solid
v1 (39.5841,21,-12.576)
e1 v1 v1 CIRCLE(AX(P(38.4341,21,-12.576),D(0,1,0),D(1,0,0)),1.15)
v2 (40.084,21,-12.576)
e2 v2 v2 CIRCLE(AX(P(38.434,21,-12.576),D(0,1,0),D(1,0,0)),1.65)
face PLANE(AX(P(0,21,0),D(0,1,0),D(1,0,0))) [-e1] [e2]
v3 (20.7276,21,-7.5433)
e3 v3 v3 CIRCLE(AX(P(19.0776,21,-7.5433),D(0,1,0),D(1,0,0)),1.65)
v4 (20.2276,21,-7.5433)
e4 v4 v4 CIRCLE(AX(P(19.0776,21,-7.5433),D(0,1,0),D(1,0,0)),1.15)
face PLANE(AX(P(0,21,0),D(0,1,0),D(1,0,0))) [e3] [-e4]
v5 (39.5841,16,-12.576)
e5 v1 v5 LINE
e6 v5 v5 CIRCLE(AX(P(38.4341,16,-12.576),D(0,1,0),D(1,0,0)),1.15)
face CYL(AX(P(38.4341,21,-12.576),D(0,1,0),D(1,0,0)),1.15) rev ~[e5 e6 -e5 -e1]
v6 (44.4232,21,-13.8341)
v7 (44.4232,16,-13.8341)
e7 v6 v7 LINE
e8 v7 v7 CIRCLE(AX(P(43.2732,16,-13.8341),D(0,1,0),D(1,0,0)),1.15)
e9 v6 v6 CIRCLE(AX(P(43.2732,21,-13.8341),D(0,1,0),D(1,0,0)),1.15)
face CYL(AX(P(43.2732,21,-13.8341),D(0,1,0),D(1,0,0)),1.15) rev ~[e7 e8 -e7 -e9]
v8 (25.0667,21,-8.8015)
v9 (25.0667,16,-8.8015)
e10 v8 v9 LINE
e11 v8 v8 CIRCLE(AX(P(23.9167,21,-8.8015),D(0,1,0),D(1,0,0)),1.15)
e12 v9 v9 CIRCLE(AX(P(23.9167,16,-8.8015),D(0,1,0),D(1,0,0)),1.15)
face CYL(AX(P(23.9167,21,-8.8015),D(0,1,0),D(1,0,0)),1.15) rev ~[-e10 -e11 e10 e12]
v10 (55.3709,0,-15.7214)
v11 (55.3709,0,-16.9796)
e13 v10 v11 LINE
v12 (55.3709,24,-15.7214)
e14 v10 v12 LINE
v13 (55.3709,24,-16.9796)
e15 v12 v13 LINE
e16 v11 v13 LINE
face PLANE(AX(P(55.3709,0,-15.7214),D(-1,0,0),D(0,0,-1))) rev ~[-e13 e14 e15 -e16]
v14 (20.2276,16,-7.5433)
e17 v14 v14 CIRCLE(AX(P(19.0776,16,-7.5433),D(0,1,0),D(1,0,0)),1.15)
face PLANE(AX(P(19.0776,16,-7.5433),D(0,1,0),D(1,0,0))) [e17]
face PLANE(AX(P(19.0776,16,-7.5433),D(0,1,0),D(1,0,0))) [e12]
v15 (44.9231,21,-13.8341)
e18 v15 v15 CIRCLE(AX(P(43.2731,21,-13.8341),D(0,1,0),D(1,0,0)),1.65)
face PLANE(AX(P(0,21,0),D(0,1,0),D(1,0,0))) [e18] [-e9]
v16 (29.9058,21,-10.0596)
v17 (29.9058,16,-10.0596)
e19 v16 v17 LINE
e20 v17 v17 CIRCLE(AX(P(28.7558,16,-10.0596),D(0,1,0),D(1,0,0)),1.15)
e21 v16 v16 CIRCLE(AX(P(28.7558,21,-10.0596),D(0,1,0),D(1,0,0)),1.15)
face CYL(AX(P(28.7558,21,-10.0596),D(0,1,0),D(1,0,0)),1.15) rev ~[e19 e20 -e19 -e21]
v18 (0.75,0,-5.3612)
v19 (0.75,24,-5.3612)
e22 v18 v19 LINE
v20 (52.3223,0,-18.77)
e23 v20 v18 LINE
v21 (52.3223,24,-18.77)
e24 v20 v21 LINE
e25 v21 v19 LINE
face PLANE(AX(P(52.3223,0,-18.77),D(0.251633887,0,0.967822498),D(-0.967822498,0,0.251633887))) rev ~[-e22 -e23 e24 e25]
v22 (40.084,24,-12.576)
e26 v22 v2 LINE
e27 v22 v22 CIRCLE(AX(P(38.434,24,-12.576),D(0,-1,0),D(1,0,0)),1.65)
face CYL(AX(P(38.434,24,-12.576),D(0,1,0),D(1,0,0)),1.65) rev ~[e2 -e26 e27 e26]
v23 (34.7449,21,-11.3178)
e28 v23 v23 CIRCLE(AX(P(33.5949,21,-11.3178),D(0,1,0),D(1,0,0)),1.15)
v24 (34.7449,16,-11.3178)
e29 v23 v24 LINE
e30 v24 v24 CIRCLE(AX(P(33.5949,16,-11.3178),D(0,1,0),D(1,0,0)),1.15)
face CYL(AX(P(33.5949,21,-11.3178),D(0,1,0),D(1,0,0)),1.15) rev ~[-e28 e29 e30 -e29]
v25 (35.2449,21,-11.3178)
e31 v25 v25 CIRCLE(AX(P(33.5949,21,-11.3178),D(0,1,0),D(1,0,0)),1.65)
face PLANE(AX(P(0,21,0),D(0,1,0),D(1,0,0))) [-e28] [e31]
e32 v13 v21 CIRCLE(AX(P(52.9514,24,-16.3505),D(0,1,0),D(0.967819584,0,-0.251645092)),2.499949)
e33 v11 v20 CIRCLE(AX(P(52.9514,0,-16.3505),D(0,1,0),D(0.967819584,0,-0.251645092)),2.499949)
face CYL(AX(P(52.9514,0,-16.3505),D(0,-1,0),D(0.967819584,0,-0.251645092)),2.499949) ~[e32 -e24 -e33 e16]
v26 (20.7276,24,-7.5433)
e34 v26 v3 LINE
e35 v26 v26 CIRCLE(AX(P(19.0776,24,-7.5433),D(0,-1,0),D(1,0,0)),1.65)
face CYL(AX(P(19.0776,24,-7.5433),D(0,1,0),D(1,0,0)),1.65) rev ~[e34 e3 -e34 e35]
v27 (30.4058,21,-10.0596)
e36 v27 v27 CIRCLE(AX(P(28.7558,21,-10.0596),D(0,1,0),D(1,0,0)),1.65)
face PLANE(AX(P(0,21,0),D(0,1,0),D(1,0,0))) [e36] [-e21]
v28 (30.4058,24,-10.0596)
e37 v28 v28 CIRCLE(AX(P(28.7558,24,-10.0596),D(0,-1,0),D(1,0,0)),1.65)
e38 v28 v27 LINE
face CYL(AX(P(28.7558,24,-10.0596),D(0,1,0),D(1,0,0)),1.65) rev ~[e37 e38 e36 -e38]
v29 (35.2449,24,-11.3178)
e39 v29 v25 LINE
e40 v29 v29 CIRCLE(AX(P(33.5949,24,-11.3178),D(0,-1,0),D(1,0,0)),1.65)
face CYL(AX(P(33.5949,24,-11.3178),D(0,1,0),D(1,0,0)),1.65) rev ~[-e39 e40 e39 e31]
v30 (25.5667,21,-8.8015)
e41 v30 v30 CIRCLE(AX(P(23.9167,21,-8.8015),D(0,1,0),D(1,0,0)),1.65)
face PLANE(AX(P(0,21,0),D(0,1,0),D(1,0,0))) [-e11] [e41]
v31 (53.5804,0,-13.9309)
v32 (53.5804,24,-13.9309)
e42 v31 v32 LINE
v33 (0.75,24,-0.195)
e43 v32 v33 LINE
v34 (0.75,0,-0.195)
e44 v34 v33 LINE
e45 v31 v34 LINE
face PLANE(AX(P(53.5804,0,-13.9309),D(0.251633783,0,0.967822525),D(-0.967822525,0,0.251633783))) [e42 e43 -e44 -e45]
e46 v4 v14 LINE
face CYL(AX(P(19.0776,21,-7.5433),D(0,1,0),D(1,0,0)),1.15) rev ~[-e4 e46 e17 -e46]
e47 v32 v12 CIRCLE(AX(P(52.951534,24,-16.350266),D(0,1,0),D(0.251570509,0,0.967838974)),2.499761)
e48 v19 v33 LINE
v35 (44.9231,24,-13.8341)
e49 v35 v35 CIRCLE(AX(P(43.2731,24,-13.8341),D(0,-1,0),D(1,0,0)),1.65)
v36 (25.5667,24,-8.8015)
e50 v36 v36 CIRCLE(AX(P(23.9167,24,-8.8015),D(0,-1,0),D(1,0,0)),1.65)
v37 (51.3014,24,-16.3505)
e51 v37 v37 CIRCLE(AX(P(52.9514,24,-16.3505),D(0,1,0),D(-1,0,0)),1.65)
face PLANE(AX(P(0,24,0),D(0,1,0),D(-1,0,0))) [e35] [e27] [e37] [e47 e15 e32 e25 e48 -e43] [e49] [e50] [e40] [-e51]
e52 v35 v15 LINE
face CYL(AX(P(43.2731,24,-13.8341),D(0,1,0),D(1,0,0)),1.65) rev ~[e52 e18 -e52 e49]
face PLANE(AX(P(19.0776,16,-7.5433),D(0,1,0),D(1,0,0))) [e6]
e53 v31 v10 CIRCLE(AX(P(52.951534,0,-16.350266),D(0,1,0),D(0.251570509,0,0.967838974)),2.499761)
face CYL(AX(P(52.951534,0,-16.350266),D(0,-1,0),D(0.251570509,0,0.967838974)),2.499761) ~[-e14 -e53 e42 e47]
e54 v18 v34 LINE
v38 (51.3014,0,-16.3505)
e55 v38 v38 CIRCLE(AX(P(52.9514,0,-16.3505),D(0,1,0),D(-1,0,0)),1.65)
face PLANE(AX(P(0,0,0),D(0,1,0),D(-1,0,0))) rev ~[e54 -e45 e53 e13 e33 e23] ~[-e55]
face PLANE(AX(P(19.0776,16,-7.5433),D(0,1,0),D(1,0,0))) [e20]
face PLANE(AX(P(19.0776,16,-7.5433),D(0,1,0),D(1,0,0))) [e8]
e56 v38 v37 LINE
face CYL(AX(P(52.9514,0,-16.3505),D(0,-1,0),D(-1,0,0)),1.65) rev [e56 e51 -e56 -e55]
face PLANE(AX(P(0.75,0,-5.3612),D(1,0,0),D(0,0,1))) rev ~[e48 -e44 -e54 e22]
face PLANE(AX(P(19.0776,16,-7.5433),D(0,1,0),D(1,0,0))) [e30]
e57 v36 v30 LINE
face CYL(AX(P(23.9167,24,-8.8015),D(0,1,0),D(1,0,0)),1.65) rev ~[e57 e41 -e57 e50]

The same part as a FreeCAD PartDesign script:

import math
import FreeCAD as App
import Part
import Sketcher

doc = App.newDocument("Part")
body = doc.addObject("PartDesign::Body", "Body")

# Sketch on XZ plane
sketch1 = doc.addObject("Sketcher::SketchObject", "Sketch")
body.addObject(sketch1)
sketch1.AttachmentSupport = (doc.XZ_Plane, [""])
sketch1.MapMode = "FlatFace"
sketch1.addGeometry([
    Part.LineSegment(App.Vector(0.8, -0.2, 0), App.Vector(53.6, -13.9, 0)),  # 0
    Part.ArcOfCircle(Part.Circle(App.Vector(53, -16.4, 0), App.Vector(0, 0, 1), 2.5), math.radians(15), math.radians(75)),  # 1
    Part.LineSegment(App.Vector(55.4, -15.7, 0), App.Vector(55.4, -17, 0)),  # 2
    Part.ArcOfCircle(Part.Circle(App.Vector(53, -16.4, 0), App.Vector(0, 0, 1), 2.5), math.radians(-105), math.radians(-15)),  # 3
    Part.LineSegment(App.Vector(52.3, -18.8, 0), App.Vector(0.8, -5.4, 0)),  # 4
    Part.LineSegment(App.Vector(0.8, -5.4, 0), App.Vector(0.8, -0.2, 0)),  # 5
    Part.Circle(App.Vector(53, -16.4, 0), App.Vector(0, 0, 1), 1.6),  # 6
], False)
sketch1.addConstraint([
    Sketcher.Constraint("Tangent", 0, 2, 1, 2),
    Sketcher.Constraint("Coincident", 1, 1, 2, 1),
    Sketcher.Constraint("Coincident", 2, 2, 3, 2),
    Sketcher.Constraint("Tangent", 3, 1, 4, 1),
    Sketcher.Constraint("Coincident", 4, 2, 5, 1),
    Sketcher.Constraint("Coincident", 5, 2, 0, 1),
    Sketcher.Constraint("Vertical", 2),
    Sketcher.Constraint("Vertical", 5),
    Sketcher.Constraint("Coincident", 3, 3, 1, 3),
    Sketcher.Constraint("Coincident", 6, 3, 1, 3),
    Sketcher.Constraint("Equal", 1, 3),
    Sketcher.Constraint("Parallel", 0, 4),
    Sketcher.Constraint("Diameter", 6, 3.3),
    Sketcher.Constraint("Radius", 1, 2.5),
    Sketcher.Constraint("DistanceY", 3, 1, -1, 1, 18.77),
    Sketcher.Constraint("DistanceX", -1, 1, 4, 2, 0.75),
    Sketcher.Constraint("Distance", 4, 53.287),
    Sketcher.Constraint("DistanceY", 2, 2, 2, 1, 1.2582),
    Sketcher.Constraint("DistanceY", 5, 1, 5, 2, 5.1662),
])
pad1 = doc.addObject("PartDesign::Pad", "Pad")
body.addObject(pad1)
pad1.Profile = sketch1
pad1.Length = 24
pad1.Reversed = True

# Sketch on XZ plane
sketch2 = doc.addObject("Sketcher::SketchObject", "Sketch001")
body.addObject(sketch2)
sketch2.AttachmentSupport = (doc.XZ_Plane, [""])
sketch2.MapMode = "FlatFace"
sketch2.AttachmentOffset = App.Placement(App.Vector(0, 0, -24), App.Rotation())
sketch2.addGeometry([
    Part.Circle(App.Vector(19.1, -7.5, 0), App.Vector(0, 0, 1), 1.6),  # 0
    Part.Circle(App.Vector(23.9, -8.8, 0), App.Vector(0, 0, 1), 1.6),  # 1
    Part.Circle(App.Vector(28.8, -10.1, 0), App.Vector(0, 0, 1), 1.6),  # 2
    Part.Circle(App.Vector(33.6, -11.3, 0), App.Vector(0, 0, 1), 1.6),  # 3
    Part.Circle(App.Vector(38.4, -12.6, 0), App.Vector(0, 0, 1), 1.6),  # 4
    Part.Circle(App.Vector(43.3, -13.8, 0), App.Vector(0, 0, 1), 1.6),  # 5
], False)
sketch2.addConstraint([
    Sketcher.Constraint("Equal", 0, 1),
    Sketcher.Constraint("Equal", 1, 2),
    Sketcher.Constraint("Equal", 2, 3),
    Sketcher.Constraint("Equal", 3, 4),
    Sketcher.Constraint("Equal", 4, 5),
    Sketcher.Constraint("Diameter", 0, 3.3),
    Sketcher.Constraint("DistanceX", -1, 1, 3, 3, 33.595),
    Sketcher.Constraint("DistanceX", -1, 1, 4, 3, 38.434),
    Sketcher.Constraint("DistanceY", 4, 3, -1, 1, 12.576),
    Sketcher.Constraint("DistanceX", -1, 1, 5, 3, 43.273),
    Sketcher.Constraint("DistanceY", 5, 3, -1, 1, 13.834),
    Sketcher.Constraint("DistanceX", 0, 3, 1, 3, 4.839),
    Sketcher.Constraint("DistanceX", 1, 3, 2, 3, 4.839),
    Sketcher.Constraint("DistanceY", 2, 3, 1, 3, 1.258),
    Sketcher.Constraint("DistanceX", 2, 3, 3, 3, 4.839),
    Sketcher.Constraint("DistanceY", 0, 3, -1, 1, 7.5433),
    Sketcher.Constraint("DistanceY", 1, 3, -1, 1, 8.8015),
    Sketcher.Constraint("DistanceY", 3, 3, -1, 1, 11.3178),
])
pocket1 = doc.addObject("PartDesign::Pocket", "Pocket")
body.addObject(pocket1)
pocket1.Profile = sketch2
pocket1.Length = 3
pocket1.Reversed = True

# Sketch on XZ plane
sketch3 = doc.addObject("Sketcher::SketchObject", "Sketch002")
body.addObject(sketch3)
sketch3.AttachmentSupport = (doc.XZ_Plane, [""])
sketch3.MapMode = "FlatFace"
sketch3.AttachmentOffset = App.Placement(App.Vector(0, 0, -21), App.Rotation())
sketch3.addGeometry([
    Part.Circle(App.Vector(19.1, -7.5, 0), App.Vector(0, 0, 1), 1.1),  # 0
    Part.Circle(App.Vector(23.9, -8.8, 0), App.Vector(0, 0, 1), 1.1),  # 1
    Part.Circle(App.Vector(28.8, -10.1, 0), App.Vector(0, 0, 1), 1.1),  # 2
    Part.Circle(App.Vector(33.6, -11.3, 0), App.Vector(0, 0, 1), 1.1),  # 3
    Part.Circle(App.Vector(38.4, -12.6, 0), App.Vector(0, 0, 1), 1.1),  # 4
    Part.Circle(App.Vector(43.3, -13.8, 0), App.Vector(0, 0, 1), 1.1),  # 5
], False)
sketch3.addConstraint([
    Sketcher.Constraint("Equal", 0, 1),
    Sketcher.Constraint("Equal", 1, 2),
    Sketcher.Constraint("Equal", 2, 3),
    Sketcher.Constraint("Equal", 3, 4),
    Sketcher.Constraint("Equal", 4, 5),
    Sketcher.Constraint("Diameter", 0, 2.3),
    Sketcher.Constraint("DistanceX", -1, 1, 3, 3, 33.595),
    Sketcher.Constraint("DistanceX", -1, 1, 4, 3, 38.434),
    Sketcher.Constraint("DistanceY", 4, 3, -1, 1, 12.576),
    Sketcher.Constraint("DistanceY", 5, 3, -1, 1, 13.834),
    Sketcher.Constraint("DistanceX", 0, 3, 1, 3, 4.839),
    Sketcher.Constraint("DistanceX", 1, 3, 2, 3, 4.839),
    Sketcher.Constraint("DistanceY", 2, 3, 1, 3, 1.258),
    Sketcher.Constraint("DistanceX", 2, 3, 3, 3, 4.839),
    Sketcher.Constraint("DistanceX", 4, 3, 5, 3, 4.839),
    Sketcher.Constraint("DistanceY", 0, 3, -1, 1, 7.5433),
    Sketcher.Constraint("DistanceY", 1, 3, -1, 1, 8.8015),
    Sketcher.Constraint("DistanceY", 3, 3, -1, 1, 11.3178),
])
pocket2 = doc.addObject("PartDesign::Pocket", "Pocket001")
body.addObject(pocket2)
pocket2.Profile = sketch3
pocket2.Length = 5
pocket2.Reversed = True

doc.recompute()
